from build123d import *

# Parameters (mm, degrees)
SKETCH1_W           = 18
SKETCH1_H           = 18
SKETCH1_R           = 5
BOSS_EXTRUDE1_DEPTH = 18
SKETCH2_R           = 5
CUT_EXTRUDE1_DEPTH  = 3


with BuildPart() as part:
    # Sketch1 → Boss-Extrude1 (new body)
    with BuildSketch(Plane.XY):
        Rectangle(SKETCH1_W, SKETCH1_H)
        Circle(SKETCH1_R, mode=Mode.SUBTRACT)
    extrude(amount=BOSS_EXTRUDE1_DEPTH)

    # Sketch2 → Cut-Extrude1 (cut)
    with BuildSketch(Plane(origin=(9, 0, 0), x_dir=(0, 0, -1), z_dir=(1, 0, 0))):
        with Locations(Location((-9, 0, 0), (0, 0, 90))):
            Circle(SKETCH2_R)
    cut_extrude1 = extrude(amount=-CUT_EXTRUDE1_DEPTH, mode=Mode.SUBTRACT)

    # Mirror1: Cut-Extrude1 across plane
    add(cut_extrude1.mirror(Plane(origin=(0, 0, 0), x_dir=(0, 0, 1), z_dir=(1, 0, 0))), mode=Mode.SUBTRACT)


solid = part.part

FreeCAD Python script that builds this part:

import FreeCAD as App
import Part
import Sketcher
from FreeCAD import Vector

doc = App.newDocument("Part")
body = doc.addObject("PartDesign::Body", "Body")

# Sketch on XY plane
sketch1 = doc.addObject("Sketcher::SketchObject", "Sketch")
body.addObject(sketch1)
sketch1.AttachmentSupport = (doc.XY_Plane, [""])
sketch1.MapMode = "FlatFace"
sketch1.addGeometry(Part.LineSegment(Vector(-9, 9, 0), Vector(-9, -9, 0)), False)
sketch1.addGeometry(Part.LineSegment(Vector(-9, -9, 0), Vector(9, -9, 0)), False)
sketch1.addGeometry(Part.LineSegment(Vector(9, -9, 0), Vector(9, 9, 0)), False)
sketch1.addGeometry(Part.LineSegment(Vector(9, 9, 0), Vector(-9, 9, 0)), False)
sketch1.addGeometry(Part.Circle(Vector(0, 0, 0), Vector(0, 0, 1), 5), False)
sketch1.addConstraint(Sketcher.Constraint("Coincident", 0, 2, 1, 1))
sketch1.addConstraint(Sketcher.Constraint("Coincident", 1, 2, 2, 1))
sketch1.addConstraint(Sketcher.Constraint("Coincident", 2, 2, 3, 1))
sketch1.addConstraint(Sketcher.Constraint("Coincident", 3, 2, 0, 1))
sketch1.addConstraint(Sketcher.Constraint("Vertical", 0))
sketch1.addConstraint(Sketcher.Constraint("Horizontal", 1))
sketch1.addConstraint(Sketcher.Constraint("Vertical", 2))
sketch1.addConstraint(Sketcher.Constraint("Horizontal", 3))
sketch1.addConstraint(Sketcher.Constraint("Coincident", 4, 3, -1, 1))
sketch1.addConstraint(Sketcher.Constraint("Symmetric", 0, 2, 2, 2, -1, 1))
sketch1.addConstraint(Sketcher.Constraint("Equal", 3, 0))
sketch1.addConstraint(Sketcher.Constraint("Diameter", 4, 10.0))
sketch1.addConstraint(Sketcher.Constraint("DistanceX", 1, 1, 1, 2, 18.0))
pad1 = doc.addObject("PartDesign::Pad", "Pad")
body.addObject(pad1)
pad1.Profile = sketch1
pad1.Length = 18

# Sketch on YZ plane
sketch2 = doc.addObject("Sketcher::SketchObject", "Sketch001")
body.addObject(sketch2)
sketch2.AttachmentSupport = (doc.YZ_Plane, [""])
sketch2.MapMode = "FlatFace"
sketch2.AttachmentOffset = App.Placement(Vector(0, 0, 9), App.Rotation())
sketch2.addGeometry(Part.Circle(Vector(0, 9, 0), Vector(0, 0, 1), 5), False)
sketch2.addConstraint(Sketcher.Constraint("PointOnObject", 0, 3, -2))
sketch2.addConstraint(Sketcher.Constraint("Diameter", 0, 10.0))
sketch2.addConstraint(Sketcher.Constraint("DistanceY", -1, 1, 0, 3, 9.0))
pocket1 = doc.addObject("PartDesign::Pocket", "Pocket")
body.addObject(pocket1)
pocket1.Profile = sketch2
pocket1.Length = 3
doc.recompute()

mirrored = doc.addObject("PartDesign::Mirrored", "Mirrored")
body.addObject(mirrored)
mirrored.Originals = [pocket1]
mirrored.MirrorPlane = (doc.YZ_Plane, [""])
body.Tip = mirrored

doc.recompute()
